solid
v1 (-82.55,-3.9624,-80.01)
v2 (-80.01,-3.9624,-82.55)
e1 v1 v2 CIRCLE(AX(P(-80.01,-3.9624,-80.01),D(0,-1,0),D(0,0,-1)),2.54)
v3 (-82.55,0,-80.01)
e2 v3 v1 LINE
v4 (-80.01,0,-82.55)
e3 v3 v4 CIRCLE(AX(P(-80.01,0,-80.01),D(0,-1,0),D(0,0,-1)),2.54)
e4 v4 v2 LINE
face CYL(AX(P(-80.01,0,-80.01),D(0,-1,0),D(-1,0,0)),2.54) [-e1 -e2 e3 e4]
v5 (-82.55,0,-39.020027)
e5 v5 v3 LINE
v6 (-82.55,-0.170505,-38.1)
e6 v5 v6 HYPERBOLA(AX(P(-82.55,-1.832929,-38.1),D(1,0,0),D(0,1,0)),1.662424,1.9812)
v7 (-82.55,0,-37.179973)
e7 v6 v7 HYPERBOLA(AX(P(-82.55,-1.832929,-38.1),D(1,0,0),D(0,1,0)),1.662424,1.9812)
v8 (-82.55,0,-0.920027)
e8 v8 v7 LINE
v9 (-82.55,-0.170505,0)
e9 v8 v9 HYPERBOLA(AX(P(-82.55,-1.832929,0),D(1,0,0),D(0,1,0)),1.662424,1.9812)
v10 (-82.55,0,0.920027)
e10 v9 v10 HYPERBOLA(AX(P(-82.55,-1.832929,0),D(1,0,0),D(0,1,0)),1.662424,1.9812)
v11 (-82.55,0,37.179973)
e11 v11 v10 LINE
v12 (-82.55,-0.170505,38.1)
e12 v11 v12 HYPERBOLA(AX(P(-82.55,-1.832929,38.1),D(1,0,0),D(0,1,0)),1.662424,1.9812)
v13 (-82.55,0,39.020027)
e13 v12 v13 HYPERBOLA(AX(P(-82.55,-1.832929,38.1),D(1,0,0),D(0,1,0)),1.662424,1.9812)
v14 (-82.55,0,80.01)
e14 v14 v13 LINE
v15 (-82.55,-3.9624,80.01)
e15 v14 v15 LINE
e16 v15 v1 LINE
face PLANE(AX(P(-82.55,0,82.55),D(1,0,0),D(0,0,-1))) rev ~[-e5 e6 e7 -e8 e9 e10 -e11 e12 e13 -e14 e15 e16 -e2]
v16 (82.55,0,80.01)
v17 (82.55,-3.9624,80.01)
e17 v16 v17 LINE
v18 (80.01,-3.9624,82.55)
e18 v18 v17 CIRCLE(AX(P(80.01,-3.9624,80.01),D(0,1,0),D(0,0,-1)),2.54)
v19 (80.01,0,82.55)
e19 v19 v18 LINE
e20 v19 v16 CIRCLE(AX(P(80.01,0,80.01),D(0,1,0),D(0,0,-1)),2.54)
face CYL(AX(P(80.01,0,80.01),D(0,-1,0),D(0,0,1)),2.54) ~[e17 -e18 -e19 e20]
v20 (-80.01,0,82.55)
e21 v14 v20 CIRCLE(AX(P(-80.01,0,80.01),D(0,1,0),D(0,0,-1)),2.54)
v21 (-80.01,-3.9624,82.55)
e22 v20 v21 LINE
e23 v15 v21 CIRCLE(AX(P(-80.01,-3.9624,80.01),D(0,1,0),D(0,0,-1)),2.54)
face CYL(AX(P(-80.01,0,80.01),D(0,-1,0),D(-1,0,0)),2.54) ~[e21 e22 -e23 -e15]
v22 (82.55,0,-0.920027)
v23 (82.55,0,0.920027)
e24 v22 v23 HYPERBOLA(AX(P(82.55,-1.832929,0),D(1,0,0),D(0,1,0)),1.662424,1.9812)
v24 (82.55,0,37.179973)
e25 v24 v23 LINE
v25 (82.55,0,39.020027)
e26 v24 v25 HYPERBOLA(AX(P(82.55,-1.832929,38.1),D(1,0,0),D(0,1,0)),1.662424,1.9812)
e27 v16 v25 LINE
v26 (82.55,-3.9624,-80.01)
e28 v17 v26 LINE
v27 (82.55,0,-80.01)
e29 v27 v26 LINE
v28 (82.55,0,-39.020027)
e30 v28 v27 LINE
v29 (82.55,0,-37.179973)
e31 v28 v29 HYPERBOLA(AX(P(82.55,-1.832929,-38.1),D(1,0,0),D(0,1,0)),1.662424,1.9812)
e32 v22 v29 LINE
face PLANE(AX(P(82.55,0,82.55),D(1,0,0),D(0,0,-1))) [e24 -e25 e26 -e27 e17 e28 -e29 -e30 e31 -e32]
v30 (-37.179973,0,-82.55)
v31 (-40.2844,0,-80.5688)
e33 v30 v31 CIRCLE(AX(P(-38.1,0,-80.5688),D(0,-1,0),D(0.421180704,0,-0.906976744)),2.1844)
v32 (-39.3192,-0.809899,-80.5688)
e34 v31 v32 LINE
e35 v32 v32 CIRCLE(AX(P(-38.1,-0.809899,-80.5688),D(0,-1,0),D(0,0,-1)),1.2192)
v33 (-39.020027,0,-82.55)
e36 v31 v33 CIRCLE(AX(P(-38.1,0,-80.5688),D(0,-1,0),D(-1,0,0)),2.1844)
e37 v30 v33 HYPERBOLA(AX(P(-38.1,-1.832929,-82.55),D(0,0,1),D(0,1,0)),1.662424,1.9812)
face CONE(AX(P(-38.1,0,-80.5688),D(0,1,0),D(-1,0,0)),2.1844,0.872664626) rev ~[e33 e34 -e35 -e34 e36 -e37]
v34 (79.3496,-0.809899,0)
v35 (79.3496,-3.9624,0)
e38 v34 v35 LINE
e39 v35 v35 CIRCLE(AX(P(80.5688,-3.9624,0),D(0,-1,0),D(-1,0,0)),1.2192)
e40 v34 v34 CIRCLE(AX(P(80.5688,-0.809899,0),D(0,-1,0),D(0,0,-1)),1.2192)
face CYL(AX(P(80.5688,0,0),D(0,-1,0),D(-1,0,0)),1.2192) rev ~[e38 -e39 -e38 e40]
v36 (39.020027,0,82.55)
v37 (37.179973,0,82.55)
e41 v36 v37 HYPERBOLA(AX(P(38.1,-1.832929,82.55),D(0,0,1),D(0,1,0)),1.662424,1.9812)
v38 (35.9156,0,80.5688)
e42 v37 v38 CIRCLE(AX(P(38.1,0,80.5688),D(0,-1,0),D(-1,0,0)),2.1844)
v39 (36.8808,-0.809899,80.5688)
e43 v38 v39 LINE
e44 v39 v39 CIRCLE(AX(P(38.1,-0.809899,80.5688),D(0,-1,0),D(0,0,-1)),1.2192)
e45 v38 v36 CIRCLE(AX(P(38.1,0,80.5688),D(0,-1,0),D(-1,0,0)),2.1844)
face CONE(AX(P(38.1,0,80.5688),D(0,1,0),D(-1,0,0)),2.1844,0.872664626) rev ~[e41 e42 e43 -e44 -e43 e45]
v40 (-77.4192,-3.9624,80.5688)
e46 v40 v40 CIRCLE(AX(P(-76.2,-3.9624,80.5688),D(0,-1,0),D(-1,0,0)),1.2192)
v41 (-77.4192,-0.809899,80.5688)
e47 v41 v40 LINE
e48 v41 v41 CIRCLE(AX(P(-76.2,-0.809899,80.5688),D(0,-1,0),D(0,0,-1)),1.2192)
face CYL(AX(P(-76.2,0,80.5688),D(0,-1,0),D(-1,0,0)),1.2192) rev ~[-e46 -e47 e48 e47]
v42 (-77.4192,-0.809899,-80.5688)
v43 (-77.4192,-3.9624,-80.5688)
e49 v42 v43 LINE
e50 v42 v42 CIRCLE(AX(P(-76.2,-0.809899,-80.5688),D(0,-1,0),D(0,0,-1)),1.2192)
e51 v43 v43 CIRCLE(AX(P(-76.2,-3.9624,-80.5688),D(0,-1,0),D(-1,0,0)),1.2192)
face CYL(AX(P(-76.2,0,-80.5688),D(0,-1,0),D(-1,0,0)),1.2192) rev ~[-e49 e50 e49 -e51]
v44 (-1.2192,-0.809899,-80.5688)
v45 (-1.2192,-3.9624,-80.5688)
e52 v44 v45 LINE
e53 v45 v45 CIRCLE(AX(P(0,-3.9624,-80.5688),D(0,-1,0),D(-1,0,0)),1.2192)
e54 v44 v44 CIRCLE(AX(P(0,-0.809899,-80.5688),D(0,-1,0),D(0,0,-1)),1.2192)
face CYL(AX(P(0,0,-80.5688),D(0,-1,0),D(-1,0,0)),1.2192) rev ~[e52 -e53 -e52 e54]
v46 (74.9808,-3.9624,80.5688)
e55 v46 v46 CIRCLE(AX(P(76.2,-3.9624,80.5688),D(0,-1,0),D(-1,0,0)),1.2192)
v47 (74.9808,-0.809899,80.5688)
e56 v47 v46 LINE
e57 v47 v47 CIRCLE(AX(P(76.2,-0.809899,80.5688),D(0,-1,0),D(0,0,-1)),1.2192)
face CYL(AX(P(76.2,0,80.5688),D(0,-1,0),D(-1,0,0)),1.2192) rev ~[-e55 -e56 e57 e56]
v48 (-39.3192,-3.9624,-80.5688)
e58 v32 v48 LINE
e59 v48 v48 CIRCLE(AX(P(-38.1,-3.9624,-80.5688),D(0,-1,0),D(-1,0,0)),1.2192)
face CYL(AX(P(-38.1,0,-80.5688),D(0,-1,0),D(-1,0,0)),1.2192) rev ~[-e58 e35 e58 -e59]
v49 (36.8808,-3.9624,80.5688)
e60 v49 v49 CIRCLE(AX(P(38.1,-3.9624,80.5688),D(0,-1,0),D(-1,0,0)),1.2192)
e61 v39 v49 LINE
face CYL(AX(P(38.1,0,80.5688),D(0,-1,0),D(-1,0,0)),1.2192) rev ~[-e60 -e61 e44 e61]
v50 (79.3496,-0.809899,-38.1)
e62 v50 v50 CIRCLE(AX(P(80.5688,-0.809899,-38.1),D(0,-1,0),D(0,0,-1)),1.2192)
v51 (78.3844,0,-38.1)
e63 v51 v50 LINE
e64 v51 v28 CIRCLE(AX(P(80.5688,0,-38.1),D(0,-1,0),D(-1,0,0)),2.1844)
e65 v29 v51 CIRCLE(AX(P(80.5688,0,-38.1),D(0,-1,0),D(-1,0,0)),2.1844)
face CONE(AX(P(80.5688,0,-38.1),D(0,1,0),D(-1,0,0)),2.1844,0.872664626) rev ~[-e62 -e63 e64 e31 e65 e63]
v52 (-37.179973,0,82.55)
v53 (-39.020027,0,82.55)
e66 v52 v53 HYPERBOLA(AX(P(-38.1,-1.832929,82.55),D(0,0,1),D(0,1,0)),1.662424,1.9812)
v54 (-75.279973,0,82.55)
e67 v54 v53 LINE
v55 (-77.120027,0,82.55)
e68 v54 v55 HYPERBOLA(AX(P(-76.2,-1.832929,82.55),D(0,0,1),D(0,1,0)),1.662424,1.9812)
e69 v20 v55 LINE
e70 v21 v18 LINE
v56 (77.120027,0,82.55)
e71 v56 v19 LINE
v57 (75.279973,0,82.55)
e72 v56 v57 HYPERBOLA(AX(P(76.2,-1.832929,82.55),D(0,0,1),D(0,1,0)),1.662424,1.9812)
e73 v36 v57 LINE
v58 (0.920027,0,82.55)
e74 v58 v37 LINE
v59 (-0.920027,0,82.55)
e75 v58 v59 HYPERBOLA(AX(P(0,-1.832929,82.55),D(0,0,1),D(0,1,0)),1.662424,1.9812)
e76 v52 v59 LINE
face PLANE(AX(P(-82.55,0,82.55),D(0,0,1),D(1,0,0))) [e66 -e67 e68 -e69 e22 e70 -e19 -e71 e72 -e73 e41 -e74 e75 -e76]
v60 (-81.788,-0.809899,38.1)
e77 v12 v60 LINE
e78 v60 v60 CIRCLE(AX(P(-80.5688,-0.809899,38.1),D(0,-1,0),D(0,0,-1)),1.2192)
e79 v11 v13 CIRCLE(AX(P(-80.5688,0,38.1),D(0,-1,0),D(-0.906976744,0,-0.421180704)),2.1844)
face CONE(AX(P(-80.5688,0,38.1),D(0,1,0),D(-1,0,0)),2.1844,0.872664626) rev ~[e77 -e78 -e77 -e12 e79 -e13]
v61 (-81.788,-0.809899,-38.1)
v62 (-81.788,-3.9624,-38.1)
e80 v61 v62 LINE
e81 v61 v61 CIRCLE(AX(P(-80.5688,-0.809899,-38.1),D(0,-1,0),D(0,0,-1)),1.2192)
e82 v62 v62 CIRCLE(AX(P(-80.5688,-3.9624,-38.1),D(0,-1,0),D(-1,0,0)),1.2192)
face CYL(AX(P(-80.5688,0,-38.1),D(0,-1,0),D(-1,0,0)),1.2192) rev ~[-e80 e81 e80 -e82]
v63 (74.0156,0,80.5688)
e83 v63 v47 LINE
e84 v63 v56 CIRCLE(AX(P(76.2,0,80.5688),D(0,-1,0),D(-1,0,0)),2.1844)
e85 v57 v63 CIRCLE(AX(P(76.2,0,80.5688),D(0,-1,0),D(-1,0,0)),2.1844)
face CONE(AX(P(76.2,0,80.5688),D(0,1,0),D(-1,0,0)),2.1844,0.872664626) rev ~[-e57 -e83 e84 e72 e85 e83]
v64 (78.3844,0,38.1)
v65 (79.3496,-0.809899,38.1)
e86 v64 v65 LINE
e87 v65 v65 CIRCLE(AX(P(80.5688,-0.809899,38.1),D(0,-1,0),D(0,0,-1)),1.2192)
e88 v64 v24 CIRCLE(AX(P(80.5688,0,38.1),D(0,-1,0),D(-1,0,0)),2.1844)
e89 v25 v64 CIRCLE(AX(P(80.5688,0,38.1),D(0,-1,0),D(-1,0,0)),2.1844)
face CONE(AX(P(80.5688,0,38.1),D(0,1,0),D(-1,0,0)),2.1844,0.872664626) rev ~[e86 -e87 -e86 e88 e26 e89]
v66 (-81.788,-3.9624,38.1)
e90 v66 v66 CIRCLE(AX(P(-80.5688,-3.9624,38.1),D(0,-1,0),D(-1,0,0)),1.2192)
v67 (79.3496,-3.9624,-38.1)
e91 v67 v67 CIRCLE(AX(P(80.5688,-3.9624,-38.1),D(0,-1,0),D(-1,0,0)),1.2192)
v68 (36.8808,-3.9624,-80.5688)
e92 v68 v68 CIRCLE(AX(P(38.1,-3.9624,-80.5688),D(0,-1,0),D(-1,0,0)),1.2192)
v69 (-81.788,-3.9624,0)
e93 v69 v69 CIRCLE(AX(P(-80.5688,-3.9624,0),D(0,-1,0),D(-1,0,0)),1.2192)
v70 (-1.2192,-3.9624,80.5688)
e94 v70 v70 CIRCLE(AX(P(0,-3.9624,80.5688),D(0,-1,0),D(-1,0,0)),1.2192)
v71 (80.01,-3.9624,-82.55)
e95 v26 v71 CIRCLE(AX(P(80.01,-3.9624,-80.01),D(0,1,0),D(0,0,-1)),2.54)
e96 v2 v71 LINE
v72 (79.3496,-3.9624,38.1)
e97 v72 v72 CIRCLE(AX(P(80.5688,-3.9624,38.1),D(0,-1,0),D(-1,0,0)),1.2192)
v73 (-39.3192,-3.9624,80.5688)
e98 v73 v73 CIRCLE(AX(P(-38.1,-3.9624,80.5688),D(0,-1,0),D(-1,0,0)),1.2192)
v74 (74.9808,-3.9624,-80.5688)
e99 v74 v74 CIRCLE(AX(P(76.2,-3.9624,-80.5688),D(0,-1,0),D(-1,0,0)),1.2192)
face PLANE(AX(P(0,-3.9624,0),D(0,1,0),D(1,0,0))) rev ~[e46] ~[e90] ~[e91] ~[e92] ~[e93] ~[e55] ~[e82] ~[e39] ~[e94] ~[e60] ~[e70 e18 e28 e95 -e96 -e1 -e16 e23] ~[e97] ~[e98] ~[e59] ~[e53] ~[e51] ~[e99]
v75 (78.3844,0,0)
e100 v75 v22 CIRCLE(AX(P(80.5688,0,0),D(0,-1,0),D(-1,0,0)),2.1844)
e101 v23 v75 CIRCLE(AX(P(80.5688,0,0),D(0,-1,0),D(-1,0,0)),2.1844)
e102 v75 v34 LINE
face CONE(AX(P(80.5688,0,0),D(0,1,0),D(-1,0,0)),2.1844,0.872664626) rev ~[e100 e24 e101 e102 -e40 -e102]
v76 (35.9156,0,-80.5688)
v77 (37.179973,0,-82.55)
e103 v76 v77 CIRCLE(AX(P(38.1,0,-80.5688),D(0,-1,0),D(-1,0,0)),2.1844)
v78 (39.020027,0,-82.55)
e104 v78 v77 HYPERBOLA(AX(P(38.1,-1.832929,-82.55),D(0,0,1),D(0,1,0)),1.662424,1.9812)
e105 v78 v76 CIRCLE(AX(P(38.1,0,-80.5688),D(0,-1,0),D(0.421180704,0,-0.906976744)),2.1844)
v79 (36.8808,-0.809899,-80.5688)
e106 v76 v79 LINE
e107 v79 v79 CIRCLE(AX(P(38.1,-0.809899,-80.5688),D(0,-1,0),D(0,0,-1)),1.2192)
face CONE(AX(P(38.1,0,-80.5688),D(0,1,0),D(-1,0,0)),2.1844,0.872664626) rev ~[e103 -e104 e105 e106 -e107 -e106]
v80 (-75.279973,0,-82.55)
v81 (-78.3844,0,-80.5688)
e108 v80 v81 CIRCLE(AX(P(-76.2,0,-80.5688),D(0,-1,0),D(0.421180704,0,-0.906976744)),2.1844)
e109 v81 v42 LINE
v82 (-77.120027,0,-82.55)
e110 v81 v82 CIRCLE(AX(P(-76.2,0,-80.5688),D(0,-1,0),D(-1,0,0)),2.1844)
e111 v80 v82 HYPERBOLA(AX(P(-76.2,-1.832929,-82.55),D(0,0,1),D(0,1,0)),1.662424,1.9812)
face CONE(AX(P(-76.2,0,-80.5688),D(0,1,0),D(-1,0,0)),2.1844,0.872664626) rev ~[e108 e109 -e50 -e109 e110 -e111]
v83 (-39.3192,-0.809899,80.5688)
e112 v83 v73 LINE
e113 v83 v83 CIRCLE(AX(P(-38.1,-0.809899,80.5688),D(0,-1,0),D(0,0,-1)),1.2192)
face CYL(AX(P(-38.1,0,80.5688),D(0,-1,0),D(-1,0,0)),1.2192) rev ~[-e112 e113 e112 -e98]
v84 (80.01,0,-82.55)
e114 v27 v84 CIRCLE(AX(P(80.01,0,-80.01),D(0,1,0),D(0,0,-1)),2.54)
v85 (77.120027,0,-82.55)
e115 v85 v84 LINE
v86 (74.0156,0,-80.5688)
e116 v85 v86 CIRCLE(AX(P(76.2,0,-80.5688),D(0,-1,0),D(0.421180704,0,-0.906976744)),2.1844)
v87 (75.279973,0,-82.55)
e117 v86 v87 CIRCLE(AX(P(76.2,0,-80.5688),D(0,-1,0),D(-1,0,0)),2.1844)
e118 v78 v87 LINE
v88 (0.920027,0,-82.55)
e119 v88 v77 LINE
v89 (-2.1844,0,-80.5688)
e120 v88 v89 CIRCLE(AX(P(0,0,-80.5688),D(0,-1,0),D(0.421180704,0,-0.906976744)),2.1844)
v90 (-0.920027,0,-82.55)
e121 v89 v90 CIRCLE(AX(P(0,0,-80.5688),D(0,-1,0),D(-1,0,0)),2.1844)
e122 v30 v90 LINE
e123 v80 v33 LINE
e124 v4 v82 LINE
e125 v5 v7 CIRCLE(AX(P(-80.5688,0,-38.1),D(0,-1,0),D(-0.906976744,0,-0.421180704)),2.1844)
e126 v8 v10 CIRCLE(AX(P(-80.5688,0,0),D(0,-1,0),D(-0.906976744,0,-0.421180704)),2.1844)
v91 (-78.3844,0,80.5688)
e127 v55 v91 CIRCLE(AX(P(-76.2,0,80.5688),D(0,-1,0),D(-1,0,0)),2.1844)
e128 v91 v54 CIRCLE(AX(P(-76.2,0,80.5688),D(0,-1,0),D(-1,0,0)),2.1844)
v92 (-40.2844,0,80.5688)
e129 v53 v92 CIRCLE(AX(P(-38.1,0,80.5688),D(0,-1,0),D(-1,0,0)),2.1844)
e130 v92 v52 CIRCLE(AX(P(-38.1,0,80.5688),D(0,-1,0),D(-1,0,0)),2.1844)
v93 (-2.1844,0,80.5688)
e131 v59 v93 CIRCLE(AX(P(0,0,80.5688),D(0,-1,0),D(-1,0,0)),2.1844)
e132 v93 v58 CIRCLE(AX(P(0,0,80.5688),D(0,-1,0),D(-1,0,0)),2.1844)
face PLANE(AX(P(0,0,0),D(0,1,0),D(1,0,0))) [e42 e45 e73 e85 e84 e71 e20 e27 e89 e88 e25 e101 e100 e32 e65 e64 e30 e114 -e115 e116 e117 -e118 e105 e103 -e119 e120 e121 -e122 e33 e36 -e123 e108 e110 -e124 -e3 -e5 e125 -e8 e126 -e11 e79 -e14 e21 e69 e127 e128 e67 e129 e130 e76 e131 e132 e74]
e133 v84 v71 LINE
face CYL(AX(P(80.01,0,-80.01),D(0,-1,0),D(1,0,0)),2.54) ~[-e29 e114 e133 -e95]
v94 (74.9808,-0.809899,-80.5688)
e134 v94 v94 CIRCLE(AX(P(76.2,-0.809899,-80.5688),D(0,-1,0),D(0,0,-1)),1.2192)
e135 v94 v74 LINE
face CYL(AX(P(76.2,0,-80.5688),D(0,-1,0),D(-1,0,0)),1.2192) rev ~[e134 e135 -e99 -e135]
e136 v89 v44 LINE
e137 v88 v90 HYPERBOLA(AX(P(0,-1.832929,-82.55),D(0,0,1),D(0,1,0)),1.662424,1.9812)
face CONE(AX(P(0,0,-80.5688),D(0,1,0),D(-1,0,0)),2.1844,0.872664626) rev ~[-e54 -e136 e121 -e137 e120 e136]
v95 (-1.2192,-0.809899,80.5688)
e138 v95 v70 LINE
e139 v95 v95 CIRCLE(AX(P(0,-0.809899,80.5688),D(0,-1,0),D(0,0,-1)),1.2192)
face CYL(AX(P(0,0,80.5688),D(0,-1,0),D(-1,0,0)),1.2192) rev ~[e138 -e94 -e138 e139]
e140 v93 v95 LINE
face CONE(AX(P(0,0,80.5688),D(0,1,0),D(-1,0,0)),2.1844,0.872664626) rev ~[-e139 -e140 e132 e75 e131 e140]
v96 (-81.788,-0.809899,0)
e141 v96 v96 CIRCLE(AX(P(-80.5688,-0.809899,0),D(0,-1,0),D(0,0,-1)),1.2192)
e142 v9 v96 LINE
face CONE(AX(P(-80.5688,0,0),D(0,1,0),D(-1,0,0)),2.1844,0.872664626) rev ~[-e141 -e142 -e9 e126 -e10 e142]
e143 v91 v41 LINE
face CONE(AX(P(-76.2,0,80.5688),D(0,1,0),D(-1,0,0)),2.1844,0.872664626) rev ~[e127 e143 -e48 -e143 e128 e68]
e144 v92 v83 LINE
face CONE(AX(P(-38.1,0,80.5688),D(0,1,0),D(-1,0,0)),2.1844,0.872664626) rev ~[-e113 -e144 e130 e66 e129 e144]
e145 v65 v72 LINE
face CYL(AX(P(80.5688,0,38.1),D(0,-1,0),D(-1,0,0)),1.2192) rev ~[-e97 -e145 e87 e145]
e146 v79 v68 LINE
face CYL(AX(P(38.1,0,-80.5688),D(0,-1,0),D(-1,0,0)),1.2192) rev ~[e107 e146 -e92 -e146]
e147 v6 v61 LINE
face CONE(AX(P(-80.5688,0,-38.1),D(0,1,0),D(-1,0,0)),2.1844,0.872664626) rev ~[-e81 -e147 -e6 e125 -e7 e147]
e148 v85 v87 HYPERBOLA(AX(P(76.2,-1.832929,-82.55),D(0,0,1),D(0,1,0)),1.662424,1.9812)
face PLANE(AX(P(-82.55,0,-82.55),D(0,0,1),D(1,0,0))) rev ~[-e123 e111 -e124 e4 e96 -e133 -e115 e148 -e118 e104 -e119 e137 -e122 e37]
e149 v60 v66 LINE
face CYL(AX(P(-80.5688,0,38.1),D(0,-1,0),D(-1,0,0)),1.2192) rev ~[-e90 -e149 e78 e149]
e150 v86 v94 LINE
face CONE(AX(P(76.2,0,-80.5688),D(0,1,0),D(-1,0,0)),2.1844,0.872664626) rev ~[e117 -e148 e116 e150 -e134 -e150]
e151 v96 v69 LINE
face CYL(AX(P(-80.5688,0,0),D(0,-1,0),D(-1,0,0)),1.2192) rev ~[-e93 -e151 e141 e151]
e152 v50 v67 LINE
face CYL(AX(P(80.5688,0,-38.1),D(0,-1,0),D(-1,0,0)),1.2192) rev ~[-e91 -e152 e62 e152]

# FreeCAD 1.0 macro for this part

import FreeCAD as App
import Part
import Sketcher

V = App.Vector
Q = App.Units.Quantity


def edges_at(feature, points):
    """Names of the edges that pass closest to the given points."""
    edges = feature.Shape.Edges
    near = lambda p: min(range(len(edges)), key=lambda i: edges[i].distToShape(Part.Vertex(*p))[0])
    return sorted({f"Edge{near(p) + 1}" for p in points})

doc = App.newDocument("Part")
body = doc.addObject("PartDesign::Body", "Body")

# Sketch on XZ plane
sketch1 = body.newObject("Sketcher::SketchObject", "Sketch")
sketch1.AttachmentSupport = (doc.getObject("XZ_Plane"), [""])
sketch1.MapMode = "FlatFace"
sketch1.addGeometry([
    Part.LineSegment(V(-83, -83, 0), V(-83, 83, 0)),
    Part.LineSegment(V(-83, 83, 0), V(83, 83, 0)),
    Part.LineSegment(V(83, 83, 0), V(83, -83, 0)),
    Part.LineSegment(V(83, -83, 0), V(-83, -83, 0)),
], False)
sketch1.addConstraint([
    Sketcher.Constraint("Coincident", 0, 2, 1, 1),
    Sketcher.Constraint("Coincident", 1, 2, 2, 1),
    Sketcher.Constraint("Coincident", 2, 2, 3, 1),
    Sketcher.Constraint("Coincident", 3, 2, 0, 1),
    Sketcher.Constraint("Vertical", 0),
    Sketcher.Constraint("Horizontal", 1),
    Sketcher.Constraint("Vertical", 2),
    Sketcher.Constraint("Horizontal", 3),
    Sketcher.Constraint("Symmetric", 0, 2, 2, 2, -1, 1),
    Sketcher.Constraint("Equal", 3, 0),
    Sketcher.Constraint("DistanceX", 1, 1, 1, 2, Q("6.5 in")),
])
pad1 = body.newObject("PartDesign::Pad", "Pad")
pad1.Profile = sketch1
pad1.Length = Q("0.156 in")

# Sketch on XZ plane
sketch2 = body.newObject("Sketcher::SketchObject", "Sketch001")
sketch2.AttachmentSupport = (doc.getObject("XZ_Plane"), [""])
sketch2.MapMode = "FlatFace"
sketch2.addGeometry([
    Part.Circle(V(-76.2, -80.6, 0), V(0, 0, 1), 1.2),  # 0
    Part.Circle(V(-80.6, -38.1, 0), V(0, 0, 1), 1.2),  # 1
    Part.Circle(V(-80.6, 0, 0), V(0, 0, 1), 1.2),  # 2
    Part.Circle(V(-80.6, 38.1, 0), V(0, 0, 1), 1.2),  # 3
    Part.Circle(V(-76.2, 80.6, 0), V(0, 0, 1), 1.2),  # 4
    Part.Circle(V(-38.1, 80.6, 0), V(0, 0, 1), 1.2),  # 5
    Part.Circle(V(0, 80.6, 0), V(0, 0, 1), 1.2),  # 6
    Part.Circle(V(38.1, 80.6, 0), V(0, 0, 1), 1.2),  # 7
    Part.Circle(V(80.6, 38.1, 0), V(0, 0, 1), 1.2),  # 8
    Part.Circle(V(80.6, 0, 0), V(0, 0, 1), 1.2),  # 9
    Part.Circle(V(80.6, -38.1, 0), V(0, 0, 1), 1.2),  # 10
    Part.Circle(V(76.2, -80.6, 0), V(0, 0, 1), 1.2),  # 11
    Part.Circle(V(38.1, -80.6, 0), V(0, 0, 1), 1.2),  # 12
    Part.Circle(V(0, -80.6, 0), V(0, 0, 1), 1.2),  # 13
    Part.Circle(V(-38.1, -80.6, 0), V(0, 0, 1), 1.2),  # 14
    Part.Circle(V(76.2, 80.6, 0), V(0, 0, 1), 1.2),  # 15
], False)
sketch2.addConstraint([
    Sketcher.Constraint("Equal", 0, 1),
    Sketcher.Constraint("Equal", 1, 2),
    Sketcher.Constraint("Equal", 2, 3),
    Sketcher.Constraint("Equal", 3, 4),
    Sketcher.Constraint("Equal", 4, 5),
    Sketcher.Constraint("Equal", 5, 6),
    Sketcher.Constraint("Equal", 6, 7),
    Sketcher.Constraint("Equal", 7, 8),
    Sketcher.Constraint("Equal", 8, 9),
    Sketcher.Constraint("Equal", 9, 10),
    Sketcher.Constraint("Equal", 10, 11),
    Sketcher.Constraint("Equal", 11, 12),
    Sketcher.Constraint("Equal", 12, 13),
    Sketcher.Constraint("Equal", 13, 14),
    Sketcher.Constraint("Equal", 14, 15),
    Sketcher.Constraint("Symmetric", 1, 3, 8, 3, -1, 1),
    Sketcher.Constraint("Symmetric", 2, 3, 9, 3, -1, 1),
    Sketcher.Constraint("Symmetric", 3, 3, 10, 3, -1, 1),
    Sketcher.Constraint("Symmetric", 4, 3, 11, 3, -1, 1),
    Sketcher.Constraint("Symmetric", 5, 3, 12, 3, -1, 1),
    Sketcher.Constraint("Symmetric", 6, 3, 13, 3, -1, 1),
    Sketcher.Constraint("Symmetric", 7, 3, 14, 3, -1, 1),
    Sketcher.Constraint("Symmetric", 0, 3, 15, 3, -1, 1),
    Sketcher.Constraint("Symmetric", 5, 3, 7, 3, -2),
    Sketcher.Constraint("Symmetric", 3, 3, 8, 3, -2),
    Sketcher.Constraint("Symmetric", 0, 3, 11, 3, -2),
    Sketcher.Constraint("PointOnObject", 2, 3, -1),
    Sketcher.Constraint("PointOnObject", 6, 3, -2),
    Sketcher.Constraint("Horizontal", 4, 3, 5, 3),
    Sketcher.Constraint("Horizontal", 5, 3, 6, 3),
    Sketcher.Constraint("Vertical", 1, 3, 2, 3),
    Sketcher.Constraint("Diameter", 0, Q("0.096 in")),
    Sketcher.Constraint("DistanceX", 0, 3, -1, 1, Q("3 in")),
    Sketcher.Constraint("DistanceY", 1, 3, 3, 3, Q("3 in")),
    Sketcher.Constraint("DistanceX", 5, 3, 7, 3, Q("3 in")),
    Sketcher.Constraint("DistanceY", 0, 3, -1, 1, Q("3.172 in")),
    Sketcher.Constraint("DistanceX", 1, 3, -1, 1, Q("3.172 in")),
])
doc.recompute()
hole = body.newObject("PartDesign::Hole", "Hole")
hole.Profile = sketch2
hole.ThreadType = "None"
hole.Diameter = Q("0.096 in")
hole.DepthType = "ThroughAll"
hole.HoleCutType = "Countersink"
hole.HoleCutDiameter = Q("0.172 in")
hole.HoleCutCountersinkAngle = 100
hole.Reversed = True
doc.recompute()

fillet = body.newObject("PartDesign::Fillet", "Fillet")
fillet.Base = (hole, edges_at(hole, [
    (82.55, -1.981, 82.55),
    (-82.55, -1.981, 82.55),
    (-82.55, -1.981, -82.55),
    (82.55, -1.981, -82.55),
]))
fillet.Radius = Q("0.1 in")

doc.recompute()
